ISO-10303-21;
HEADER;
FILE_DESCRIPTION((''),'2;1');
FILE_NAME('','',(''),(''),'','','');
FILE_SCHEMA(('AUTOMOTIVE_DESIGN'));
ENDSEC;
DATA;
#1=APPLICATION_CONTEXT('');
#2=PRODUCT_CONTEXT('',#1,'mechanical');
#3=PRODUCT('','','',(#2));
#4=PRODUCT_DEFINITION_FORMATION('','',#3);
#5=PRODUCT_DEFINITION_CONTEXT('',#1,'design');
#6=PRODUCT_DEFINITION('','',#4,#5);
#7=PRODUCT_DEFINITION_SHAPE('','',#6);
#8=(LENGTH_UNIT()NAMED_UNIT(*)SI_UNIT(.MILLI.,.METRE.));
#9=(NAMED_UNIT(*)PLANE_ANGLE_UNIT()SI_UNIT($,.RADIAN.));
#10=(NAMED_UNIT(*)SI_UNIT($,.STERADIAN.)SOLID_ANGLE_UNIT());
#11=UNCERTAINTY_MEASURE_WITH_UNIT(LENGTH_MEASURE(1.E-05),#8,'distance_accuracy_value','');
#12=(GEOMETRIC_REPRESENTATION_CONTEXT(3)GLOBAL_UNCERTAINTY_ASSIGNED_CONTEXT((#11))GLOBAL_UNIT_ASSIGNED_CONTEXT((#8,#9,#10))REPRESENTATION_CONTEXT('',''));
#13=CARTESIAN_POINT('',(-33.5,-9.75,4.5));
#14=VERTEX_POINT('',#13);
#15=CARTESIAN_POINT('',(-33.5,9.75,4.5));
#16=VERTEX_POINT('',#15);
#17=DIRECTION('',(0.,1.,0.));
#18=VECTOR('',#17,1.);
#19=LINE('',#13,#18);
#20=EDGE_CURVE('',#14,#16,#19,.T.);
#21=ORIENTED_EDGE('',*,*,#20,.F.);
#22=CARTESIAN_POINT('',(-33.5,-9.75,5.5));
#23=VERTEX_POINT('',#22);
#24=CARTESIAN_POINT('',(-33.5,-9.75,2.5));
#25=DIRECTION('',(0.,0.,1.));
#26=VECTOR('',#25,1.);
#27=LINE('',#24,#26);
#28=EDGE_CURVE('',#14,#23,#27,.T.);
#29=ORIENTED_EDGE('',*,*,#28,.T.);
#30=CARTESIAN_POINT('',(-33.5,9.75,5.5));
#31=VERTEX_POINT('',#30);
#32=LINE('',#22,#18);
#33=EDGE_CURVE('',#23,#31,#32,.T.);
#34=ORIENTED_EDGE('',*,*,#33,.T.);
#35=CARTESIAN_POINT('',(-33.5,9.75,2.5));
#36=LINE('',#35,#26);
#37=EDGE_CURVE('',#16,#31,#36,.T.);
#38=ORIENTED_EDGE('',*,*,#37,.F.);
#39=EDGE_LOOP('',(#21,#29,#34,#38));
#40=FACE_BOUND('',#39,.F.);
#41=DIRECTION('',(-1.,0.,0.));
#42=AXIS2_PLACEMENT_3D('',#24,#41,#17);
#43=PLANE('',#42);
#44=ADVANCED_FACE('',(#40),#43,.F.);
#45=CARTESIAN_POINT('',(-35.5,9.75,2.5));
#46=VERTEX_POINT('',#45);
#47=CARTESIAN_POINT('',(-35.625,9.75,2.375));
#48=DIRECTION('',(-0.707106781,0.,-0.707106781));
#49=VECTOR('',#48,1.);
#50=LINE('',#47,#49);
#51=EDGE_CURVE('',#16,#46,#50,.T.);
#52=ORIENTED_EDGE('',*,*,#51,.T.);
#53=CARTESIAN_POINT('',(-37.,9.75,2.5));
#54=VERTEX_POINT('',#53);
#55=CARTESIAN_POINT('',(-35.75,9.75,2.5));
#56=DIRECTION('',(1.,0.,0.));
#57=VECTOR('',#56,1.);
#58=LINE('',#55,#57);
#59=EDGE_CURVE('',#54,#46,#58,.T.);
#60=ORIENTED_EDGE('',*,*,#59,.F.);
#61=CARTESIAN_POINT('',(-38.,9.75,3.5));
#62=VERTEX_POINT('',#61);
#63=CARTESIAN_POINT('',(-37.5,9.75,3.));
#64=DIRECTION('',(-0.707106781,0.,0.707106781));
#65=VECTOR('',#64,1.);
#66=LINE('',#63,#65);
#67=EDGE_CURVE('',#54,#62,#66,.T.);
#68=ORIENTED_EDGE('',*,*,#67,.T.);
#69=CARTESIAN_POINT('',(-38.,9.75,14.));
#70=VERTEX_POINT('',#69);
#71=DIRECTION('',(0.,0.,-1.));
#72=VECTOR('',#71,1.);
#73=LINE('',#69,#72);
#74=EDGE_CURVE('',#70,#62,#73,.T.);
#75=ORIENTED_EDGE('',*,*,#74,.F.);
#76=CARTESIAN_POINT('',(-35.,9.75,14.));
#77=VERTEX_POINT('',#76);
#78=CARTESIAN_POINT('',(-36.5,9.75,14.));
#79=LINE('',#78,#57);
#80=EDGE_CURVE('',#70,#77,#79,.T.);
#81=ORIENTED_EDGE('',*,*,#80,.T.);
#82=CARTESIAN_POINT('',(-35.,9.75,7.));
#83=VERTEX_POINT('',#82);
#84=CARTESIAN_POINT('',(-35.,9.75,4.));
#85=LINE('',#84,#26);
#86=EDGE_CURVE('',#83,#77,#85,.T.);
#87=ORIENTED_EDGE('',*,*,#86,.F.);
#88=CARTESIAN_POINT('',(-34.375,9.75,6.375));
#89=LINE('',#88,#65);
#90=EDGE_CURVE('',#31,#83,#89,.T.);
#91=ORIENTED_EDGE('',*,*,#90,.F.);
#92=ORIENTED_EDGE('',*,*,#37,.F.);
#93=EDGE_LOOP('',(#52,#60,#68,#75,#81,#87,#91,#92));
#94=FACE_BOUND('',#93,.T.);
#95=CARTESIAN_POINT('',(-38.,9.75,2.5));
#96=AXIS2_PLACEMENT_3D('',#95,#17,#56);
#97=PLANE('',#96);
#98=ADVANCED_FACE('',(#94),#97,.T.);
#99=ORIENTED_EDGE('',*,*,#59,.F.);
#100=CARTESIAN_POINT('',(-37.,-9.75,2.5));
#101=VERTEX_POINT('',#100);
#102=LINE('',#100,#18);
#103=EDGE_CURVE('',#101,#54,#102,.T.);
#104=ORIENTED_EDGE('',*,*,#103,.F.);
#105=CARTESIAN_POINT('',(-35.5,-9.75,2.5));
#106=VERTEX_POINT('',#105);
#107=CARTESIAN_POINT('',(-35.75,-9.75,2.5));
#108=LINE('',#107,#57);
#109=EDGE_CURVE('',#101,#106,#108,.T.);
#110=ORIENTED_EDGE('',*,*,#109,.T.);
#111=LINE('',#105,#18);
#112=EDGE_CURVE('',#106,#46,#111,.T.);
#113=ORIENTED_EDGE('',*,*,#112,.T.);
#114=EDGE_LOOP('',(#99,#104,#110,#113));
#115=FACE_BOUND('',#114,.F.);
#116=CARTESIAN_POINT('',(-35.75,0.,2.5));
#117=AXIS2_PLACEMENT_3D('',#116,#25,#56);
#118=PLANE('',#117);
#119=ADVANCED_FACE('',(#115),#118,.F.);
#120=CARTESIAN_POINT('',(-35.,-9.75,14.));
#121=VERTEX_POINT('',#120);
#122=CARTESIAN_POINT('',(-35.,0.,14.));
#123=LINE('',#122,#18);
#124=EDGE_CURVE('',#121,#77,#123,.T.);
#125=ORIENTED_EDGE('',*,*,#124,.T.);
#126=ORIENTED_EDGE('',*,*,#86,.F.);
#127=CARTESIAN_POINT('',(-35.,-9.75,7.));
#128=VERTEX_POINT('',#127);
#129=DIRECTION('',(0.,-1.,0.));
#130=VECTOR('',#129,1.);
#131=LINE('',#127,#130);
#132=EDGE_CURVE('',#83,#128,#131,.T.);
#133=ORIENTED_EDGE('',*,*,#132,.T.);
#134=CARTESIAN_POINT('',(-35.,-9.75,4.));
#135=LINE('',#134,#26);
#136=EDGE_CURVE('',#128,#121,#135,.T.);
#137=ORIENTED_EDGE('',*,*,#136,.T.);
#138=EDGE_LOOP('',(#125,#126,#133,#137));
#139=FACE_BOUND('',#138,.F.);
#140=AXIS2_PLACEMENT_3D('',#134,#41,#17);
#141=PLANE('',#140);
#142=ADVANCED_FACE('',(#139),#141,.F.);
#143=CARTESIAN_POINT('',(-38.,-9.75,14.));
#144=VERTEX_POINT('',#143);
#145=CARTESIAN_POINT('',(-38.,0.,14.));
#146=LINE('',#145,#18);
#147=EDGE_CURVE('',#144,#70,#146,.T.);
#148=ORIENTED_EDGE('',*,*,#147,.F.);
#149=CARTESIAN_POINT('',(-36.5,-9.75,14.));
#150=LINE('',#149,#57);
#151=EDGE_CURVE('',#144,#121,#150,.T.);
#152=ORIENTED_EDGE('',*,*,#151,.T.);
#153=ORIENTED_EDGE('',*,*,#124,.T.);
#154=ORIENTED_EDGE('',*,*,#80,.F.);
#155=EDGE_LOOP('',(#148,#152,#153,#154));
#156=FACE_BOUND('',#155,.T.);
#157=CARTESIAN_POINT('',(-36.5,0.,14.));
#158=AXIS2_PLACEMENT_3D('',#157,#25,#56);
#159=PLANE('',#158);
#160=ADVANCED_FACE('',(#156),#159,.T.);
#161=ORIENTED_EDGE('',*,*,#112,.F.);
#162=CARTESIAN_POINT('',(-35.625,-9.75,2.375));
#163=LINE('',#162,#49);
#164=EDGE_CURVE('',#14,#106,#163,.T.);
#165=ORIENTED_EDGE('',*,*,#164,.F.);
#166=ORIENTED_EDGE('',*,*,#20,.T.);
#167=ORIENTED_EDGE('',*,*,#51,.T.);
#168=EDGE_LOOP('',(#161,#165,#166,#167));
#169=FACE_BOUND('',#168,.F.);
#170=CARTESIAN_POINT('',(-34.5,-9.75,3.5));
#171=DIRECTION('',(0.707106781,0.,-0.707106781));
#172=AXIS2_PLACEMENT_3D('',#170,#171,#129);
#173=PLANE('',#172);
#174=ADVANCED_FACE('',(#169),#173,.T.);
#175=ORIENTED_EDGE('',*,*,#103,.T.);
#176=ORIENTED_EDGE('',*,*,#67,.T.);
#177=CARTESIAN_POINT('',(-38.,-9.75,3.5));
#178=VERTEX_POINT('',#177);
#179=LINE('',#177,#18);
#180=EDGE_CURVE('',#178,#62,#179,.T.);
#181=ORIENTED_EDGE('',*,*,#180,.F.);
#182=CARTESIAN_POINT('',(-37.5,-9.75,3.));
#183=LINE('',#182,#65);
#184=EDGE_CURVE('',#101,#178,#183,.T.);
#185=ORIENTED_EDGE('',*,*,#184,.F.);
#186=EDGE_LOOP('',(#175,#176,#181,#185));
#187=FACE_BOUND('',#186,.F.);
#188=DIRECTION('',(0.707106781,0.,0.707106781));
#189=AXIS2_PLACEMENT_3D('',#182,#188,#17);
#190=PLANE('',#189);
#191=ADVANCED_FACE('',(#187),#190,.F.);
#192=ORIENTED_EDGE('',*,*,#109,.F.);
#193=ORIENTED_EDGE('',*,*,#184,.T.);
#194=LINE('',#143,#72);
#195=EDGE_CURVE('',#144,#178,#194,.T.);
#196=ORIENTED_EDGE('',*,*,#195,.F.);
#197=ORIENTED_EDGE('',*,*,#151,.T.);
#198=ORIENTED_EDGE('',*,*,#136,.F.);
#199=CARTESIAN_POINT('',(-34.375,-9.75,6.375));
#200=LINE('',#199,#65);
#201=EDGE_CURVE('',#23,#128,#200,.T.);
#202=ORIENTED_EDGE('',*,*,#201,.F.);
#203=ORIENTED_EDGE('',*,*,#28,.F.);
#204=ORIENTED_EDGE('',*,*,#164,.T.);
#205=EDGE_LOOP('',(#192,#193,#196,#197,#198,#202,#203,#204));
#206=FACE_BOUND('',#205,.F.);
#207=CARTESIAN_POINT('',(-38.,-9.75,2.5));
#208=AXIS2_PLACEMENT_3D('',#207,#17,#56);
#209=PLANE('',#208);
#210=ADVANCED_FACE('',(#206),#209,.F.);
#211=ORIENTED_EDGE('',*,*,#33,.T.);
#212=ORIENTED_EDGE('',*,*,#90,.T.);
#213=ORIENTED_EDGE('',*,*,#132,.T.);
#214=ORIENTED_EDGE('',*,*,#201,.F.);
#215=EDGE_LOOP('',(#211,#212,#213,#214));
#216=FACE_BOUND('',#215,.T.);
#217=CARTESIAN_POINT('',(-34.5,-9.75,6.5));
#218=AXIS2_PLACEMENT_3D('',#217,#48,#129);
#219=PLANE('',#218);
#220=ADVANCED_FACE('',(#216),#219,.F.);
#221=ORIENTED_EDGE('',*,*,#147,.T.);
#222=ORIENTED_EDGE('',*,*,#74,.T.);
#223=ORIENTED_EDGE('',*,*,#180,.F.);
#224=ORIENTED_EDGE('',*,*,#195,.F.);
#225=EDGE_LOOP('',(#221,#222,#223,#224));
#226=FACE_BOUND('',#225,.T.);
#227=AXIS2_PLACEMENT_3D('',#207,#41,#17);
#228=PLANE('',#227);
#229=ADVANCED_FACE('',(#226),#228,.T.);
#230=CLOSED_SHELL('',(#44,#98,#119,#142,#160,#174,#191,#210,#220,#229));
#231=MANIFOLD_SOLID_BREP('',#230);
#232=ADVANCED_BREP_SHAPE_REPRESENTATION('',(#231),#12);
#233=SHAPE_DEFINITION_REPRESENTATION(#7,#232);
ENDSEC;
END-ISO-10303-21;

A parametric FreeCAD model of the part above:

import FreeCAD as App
import Part
import Sketcher


def edges_at(feature, points):
    """Names of the edges that pass closest to the given points."""
    edges = feature.Shape.Edges
    near = lambda p: min(range(len(edges)), key=lambda i: edges[i].distToShape(Part.Vertex(*p))[0])
    return sorted({f"Edge{near(p) + 1}" for p in points})

doc = App.newDocument("Part")
body = doc.addObject("PartDesign::Body", "Body")

sketch1 = body.newObject("Sketcher::SketchObject", "Sketch")
sketch1.AttachmentSupport = (doc.getObject("XY_Plane"), [""])
sketch1.MapMode = "FlatFace"
sketch1.AttachmentOffset = App.Placement(App.Vector(0, 0, 4), App.Rotation())
sketch1.addGeometry(Part.LineSegment(App.Vector(-38, 9.8, 0), App.Vector(-38, -9.8, 0)), False)
sketch1.addGeometry(Part.LineSegment(App.Vector(-38, -9.8, 0), App.Vector(-35, -9.8, 0)), False)
sketch1.addGeometry(Part.LineSegment(App.Vector(-35, -9.8, 0), App.Vector(-35, 9.8, 0)), False)
sketch1.addGeometry(Part.LineSegment(App.Vector(-35, 9.8, 0), App.Vector(-38, 9.8, 0)), False)
sketch1.addConstraint(Sketcher.Constraint("Coincident", 0, 2, 1, 1))
sketch1.addConstraint(Sketcher.Constraint("Coincident", 1, 2, 2, 1))
sketch1.addConstraint(Sketcher.Constraint("Coincident", 2, 2, 3, 1))
sketch1.addConstraint(Sketcher.Constraint("Coincident", 3, 2, 0, 1))
sketch1.addConstraint(Sketcher.Constraint("Vertical", 0))
sketch1.addConstraint(Sketcher.Constraint("Horizontal", 1))
sketch1.addConstraint(Sketcher.Constraint("Vertical", 2))
sketch1.addConstraint(Sketcher.Constraint("Horizontal", 3))
sketch1.addConstraint(Sketcher.Constraint("DistanceX", 1, 1, 1, 2, 3.0))
sketch1.addConstraint(Sketcher.Constraint("DistanceY", 0, 2, 0, 1, 19.5))
sketch1.addConstraint(Sketcher.Constraint("DistanceX", 0, 2, -1, 1, 38.0))
sketch1.addConstraint(Sketcher.Constraint("DistanceY", 0, 2, -1, 1, 9.75))
pad1 = body.newObject("PartDesign::Pad", "Pad")
pad1.Profile = sketch1
pad1.Length = 10
doc.recompute()

chamfer = body.newObject("PartDesign::Chamfer", "Chamfer")
chamfer.Base = (pad1, edges_at(pad1, [(-35, 0, 4)]))
chamfer.Size = 1
body2 = doc.addObject("PartDesign::Body", "Body001")

sketch2 = body2.newObject("Sketcher::SketchObject", "Sketch001")
sketch2.AttachmentSupport = (doc.getObject("XY_Plane001"), [""])
sketch2.MapMode = "FlatFace"
sketch2.AttachmentOffset = App.Placement(App.Vector(0, 0, 2), App.Rotation())
sketch2.addGeometry(Part.LineSegment(App.Vector(-38, 9.8, 0), App.Vector(-38, -9.8, 0)), False)
sketch2.addGeometry(Part.LineSegment(App.Vector(-38, -9.8, 0), App.Vector(-33.5, -9.8, 0)), False)
sketch2.addGeometry(Part.LineSegment(App.Vector(-33.5, -9.8, 0), App.Vector(-33.5, 9.8, 0)), False)
sketch2.addGeometry(Part.LineSegment(App.Vector(-33.5, 9.8, 0), App.Vector(-38, 9.8, 0)), False)
sketch2.addConstraint(Sketcher.Constraint("Coincident", 0, 2, 1, 1))
sketch2.addConstraint(Sketcher.Constraint("Coincident", 1, 2, 2, 1))
sketch2.addConstraint(Sketcher.Constraint("Coincident", 2, 2, 3, 1))
sketch2.addConstraint(Sketcher.Constraint("Coincident", 3, 2, 0, 1))
sketch2.addConstraint(Sketcher.Constraint("Vertical", 0))
sketch2.addConstraint(Sketcher.Constraint("Horizontal", 1))
sketch2.addConstraint(Sketcher.Constraint("Vertical", 2))
sketch2.addConstraint(Sketcher.Constraint("Horizontal", 3))
sketch2.addConstraint(Sketcher.Constraint("DistanceX", 1, 1, 1, 2, 4.5))
sketch2.addConstraint(Sketcher.Constraint("DistanceY", 0, 2, 0, 1, 19.5))
sketch2.addConstraint(Sketcher.Constraint("DistanceX", 0, 2, -1, 1, 38.0))
sketch2.addConstraint(Sketcher.Constraint("DistanceY", 0, 2, -1, 1, 9.75))
pad2 = body2.newObject("PartDesign::Pad", "Pad001")
pad2.Profile = sketch2
pad2.Length = 5
doc.recompute()

chamfer2 = body2.newObject("PartDesign::Chamfer", "Chamfer001")
chamfer2.Base = (pad2, edges_at(pad2, [(-33.5, 0, 7)]))
chamfer2.Size = 2
doc.recompute()

chamfer3 = body2.newObject("PartDesign::Chamfer", "Chamfer002")
chamfer3.Base = (chamfer2, edges_at(chamfer2, [(-33.5, 0, 2)]))
chamfer3.Size = 2
doc.recompute()

chamfer4 = body2.newObject("PartDesign::Chamfer", "Chamfer003")
chamfer4.Base = (chamfer3, edges_at(chamfer3, [(-38, 0, 2)]))
chamfer4.Size = 1
body3 = doc.addObject("PartDesign::Body", "Body002")
doc.recompute()

body2.Placement = App.Placement(App.Vector(0, 0, 0.5), App.Rotation(App.Vector(0, 0, 1), 0))
boolean = body3.newObject("PartDesign::Boolean", "Boolean")
boolean.Type = "Fuse"
boolean.addObjects([body2])
doc.recompute()

boolean2 = body3.newObject("PartDesign::Boolean", "Boolean001")
boolean2.Type = "Fuse"
boolean2.addObjects([body])

doc.recompute()
